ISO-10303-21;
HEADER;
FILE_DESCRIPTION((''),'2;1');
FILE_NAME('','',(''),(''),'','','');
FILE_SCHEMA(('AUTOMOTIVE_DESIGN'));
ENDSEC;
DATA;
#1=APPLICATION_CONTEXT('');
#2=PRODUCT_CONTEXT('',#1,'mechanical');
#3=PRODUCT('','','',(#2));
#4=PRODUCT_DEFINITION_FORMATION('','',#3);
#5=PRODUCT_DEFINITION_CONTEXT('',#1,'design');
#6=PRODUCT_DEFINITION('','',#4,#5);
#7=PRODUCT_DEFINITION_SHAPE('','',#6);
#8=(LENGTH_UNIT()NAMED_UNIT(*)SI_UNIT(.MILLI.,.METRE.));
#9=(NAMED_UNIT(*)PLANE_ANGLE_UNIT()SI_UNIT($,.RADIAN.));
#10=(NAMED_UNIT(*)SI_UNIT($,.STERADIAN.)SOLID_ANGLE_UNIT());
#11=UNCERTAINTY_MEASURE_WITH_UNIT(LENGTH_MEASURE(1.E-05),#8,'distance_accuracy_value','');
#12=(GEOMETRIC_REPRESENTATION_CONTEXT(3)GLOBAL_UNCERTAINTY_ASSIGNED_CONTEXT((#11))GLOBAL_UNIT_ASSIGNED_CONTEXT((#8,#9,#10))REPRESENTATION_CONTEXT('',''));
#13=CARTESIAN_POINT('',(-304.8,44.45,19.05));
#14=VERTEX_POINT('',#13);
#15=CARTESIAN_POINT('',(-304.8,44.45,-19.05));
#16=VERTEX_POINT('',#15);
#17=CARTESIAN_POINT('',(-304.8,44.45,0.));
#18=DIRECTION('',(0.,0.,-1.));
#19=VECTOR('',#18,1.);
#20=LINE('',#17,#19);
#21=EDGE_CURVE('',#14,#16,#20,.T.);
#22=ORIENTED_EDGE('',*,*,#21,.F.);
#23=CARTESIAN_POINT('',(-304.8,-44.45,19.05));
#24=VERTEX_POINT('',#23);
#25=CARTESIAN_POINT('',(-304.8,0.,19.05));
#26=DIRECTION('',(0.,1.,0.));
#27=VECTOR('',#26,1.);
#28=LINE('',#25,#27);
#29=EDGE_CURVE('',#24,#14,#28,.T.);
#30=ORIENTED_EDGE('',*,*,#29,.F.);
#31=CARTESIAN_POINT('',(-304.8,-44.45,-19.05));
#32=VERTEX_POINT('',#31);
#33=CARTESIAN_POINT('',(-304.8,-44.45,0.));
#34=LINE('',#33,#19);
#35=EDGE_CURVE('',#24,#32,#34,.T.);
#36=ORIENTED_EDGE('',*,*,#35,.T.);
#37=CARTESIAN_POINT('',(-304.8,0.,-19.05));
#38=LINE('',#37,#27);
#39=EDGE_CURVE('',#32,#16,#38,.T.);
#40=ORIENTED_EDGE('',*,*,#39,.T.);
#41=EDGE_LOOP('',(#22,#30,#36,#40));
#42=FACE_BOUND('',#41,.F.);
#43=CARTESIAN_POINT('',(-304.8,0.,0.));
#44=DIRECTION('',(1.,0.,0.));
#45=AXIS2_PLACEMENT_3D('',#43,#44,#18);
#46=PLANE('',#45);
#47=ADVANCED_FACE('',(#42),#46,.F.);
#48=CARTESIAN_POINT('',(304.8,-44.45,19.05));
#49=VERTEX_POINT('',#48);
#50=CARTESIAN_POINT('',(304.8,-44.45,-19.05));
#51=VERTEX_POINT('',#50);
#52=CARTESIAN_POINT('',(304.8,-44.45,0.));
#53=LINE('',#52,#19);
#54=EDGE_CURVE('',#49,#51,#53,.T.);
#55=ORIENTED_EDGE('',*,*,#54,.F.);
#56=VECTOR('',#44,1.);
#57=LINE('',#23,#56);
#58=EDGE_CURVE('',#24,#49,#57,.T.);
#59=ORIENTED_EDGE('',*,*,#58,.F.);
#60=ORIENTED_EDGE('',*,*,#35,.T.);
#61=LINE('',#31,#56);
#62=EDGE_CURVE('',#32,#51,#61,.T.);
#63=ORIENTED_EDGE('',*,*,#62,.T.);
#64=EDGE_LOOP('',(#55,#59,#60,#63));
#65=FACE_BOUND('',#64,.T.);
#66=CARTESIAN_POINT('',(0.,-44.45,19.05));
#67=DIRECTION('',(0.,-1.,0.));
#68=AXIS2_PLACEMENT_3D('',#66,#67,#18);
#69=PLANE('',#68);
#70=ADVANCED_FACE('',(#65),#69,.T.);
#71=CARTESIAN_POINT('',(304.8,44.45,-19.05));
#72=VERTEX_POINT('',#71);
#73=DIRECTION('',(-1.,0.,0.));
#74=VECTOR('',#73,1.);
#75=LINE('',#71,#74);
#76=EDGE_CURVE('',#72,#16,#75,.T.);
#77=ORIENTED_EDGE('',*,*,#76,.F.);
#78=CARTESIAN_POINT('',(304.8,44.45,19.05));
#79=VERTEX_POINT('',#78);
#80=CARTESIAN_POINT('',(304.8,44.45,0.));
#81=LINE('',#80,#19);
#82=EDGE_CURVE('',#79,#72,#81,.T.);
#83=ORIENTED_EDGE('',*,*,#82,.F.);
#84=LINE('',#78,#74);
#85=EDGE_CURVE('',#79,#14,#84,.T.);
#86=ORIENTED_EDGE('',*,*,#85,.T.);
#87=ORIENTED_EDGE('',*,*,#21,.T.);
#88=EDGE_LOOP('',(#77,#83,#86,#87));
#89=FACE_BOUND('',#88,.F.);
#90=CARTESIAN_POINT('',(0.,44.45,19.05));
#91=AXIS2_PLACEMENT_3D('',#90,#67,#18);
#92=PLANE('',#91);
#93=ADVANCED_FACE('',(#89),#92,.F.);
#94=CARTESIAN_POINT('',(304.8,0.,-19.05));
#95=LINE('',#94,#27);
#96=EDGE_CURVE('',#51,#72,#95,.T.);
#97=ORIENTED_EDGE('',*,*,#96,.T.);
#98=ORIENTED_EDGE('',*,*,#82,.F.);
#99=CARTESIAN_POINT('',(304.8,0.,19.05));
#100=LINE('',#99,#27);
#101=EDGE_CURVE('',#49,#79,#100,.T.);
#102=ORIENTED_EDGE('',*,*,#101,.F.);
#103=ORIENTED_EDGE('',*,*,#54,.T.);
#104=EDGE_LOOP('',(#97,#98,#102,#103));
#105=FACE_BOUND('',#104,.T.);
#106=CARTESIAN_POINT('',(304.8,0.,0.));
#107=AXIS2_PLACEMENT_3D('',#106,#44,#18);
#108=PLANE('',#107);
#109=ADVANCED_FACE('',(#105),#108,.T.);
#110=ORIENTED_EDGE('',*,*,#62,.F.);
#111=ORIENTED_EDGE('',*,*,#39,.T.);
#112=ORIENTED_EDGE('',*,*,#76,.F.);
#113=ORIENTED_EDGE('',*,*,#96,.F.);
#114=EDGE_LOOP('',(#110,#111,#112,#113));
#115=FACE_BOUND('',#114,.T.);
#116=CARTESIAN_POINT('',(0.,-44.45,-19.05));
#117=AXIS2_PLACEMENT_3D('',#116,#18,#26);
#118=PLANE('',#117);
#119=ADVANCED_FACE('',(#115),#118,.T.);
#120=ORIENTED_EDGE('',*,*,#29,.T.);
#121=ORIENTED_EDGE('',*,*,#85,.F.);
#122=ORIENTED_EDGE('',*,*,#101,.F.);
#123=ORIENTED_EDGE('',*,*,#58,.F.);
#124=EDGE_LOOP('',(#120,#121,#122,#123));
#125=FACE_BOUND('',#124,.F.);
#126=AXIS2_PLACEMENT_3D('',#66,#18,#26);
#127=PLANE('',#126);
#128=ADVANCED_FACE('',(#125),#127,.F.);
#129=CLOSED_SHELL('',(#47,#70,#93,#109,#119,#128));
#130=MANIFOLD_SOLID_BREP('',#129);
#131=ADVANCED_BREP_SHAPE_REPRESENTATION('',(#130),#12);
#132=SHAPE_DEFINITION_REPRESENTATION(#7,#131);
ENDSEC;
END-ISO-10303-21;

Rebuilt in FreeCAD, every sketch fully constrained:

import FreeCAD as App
import Part
import Sketcher
Q = App.Units.Quantity

doc = App.newDocument("Part")
params = doc.addObject("Spreadsheet::Sheet", "Params")
for row, (alias, value) in enumerate([
    ("sketch1_width", "3.5 in"),
    ("sketch1_height", "1.5 in"),
    ("pad1_length", "12 in"),
    ("pad1_length2", "12 in"),
], start=1):
    params.set(f"A{row}", alias)
    params.set(f"B{row}", "=" + value)
    params.setAlias(f"B{row}", alias)

body = doc.addObject("PartDesign::Body", "Body")

sketch1 = body.newObject("Sketcher::SketchObject", "Sketch")
sketch1.AttachmentSupport = (doc.getObject("YZ_Plane"), [""])
sketch1.MapMode = "FlatFace"
sketch1.addGeometry([
    Part.LineSegment(App.Vector(44, 19, 0), App.Vector(-44, 19, 0)),
    Part.LineSegment(App.Vector(-44, 19, 0), App.Vector(-44, -19, 0)),
    Part.LineSegment(App.Vector(-44, -19, 0), App.Vector(44, -19, 0)),
    Part.LineSegment(App.Vector(44, -19, 0), App.Vector(44, 19, 0)),
], False)
sketch1.addConstraint([
    Sketcher.Constraint("Coincident", 0, 2, 1, 1),
    Sketcher.Constraint("Coincident", 1, 2, 2, 1),
    Sketcher.Constraint("Coincident", 2, 2, 3, 1),
    Sketcher.Constraint("Coincident", 3, 2, 0, 1),
    Sketcher.Constraint("Horizontal", 0),
    Sketcher.Constraint("Vertical", 1),
    Sketcher.Constraint("Horizontal", 2),
    Sketcher.Constraint("Vertical", 3),
    Sketcher.Constraint("Symmetric", 0, 2, 2, 2, -1, 1),
    Sketcher.Constraint("DistanceX", 0, 2, 0, 1, Q("3.5 in")),
    Sketcher.Constraint("DistanceY", 1, 2, 1, 1, Q("1.5 in")),
])
sketch1.setExpression("Constraints[9]", "Params.sketch1_width")
sketch1.setExpression("Constraints[10]", "Params.sketch1_height")
pad1 = body.newObject("PartDesign::Pad", "Pad")
pad1.Profile = sketch1
pad1.Type = "TwoLengths"
pad1.setExpression("Length", "Params.pad1_length")
pad1.setExpression("Length2", "Params.pad1_length2")

doc.recompute()
